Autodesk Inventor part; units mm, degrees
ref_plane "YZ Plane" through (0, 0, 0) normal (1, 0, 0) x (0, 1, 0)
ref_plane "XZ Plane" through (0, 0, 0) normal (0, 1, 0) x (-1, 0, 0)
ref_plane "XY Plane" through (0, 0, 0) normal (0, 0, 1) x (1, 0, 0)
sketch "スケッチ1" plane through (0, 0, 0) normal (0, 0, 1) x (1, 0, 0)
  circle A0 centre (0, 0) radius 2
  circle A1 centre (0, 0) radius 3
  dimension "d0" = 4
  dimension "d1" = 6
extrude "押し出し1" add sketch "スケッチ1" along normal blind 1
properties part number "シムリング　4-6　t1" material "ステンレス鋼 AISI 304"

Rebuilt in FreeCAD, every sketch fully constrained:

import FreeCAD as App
import Part
import Sketcher
from FreeCAD import Vector
Q = App.Units.Quantity

doc = App.newDocument("Part")
body = doc.addObject("PartDesign::Body", "Body")

# Sketch on XY plane
sketch1 = body.newObject("Sketcher::SketchObject", "Sketch")
sketch1.AttachmentSupport = (doc.getObject("XY_Plane"), [""])
sketch1.MapMode = "FlatFace"
sketch1.addGeometry([
    Part.Circle(Vector(0, 0, 0), Vector(0, 0, 1), 3),
    Part.Circle(Vector(0, 0, 0), Vector(0, 0, 1), 2),
], False)
sketch1.addConstraint([
    Sketcher.Constraint("Coincident", 0, 3, -1, 1),
    Sketcher.Constraint("Coincident", 1, 3, -1, 1),
    Sketcher.Constraint("Diameter", 0, Q("6 mm")),
    Sketcher.Constraint("Diameter", 1, Q("4 mm")),
])
pad1 = body.newObject("PartDesign::Pad", "Pad")
pad1.Profile = sketch1
pad1.Length = 1

doc.recompute()
